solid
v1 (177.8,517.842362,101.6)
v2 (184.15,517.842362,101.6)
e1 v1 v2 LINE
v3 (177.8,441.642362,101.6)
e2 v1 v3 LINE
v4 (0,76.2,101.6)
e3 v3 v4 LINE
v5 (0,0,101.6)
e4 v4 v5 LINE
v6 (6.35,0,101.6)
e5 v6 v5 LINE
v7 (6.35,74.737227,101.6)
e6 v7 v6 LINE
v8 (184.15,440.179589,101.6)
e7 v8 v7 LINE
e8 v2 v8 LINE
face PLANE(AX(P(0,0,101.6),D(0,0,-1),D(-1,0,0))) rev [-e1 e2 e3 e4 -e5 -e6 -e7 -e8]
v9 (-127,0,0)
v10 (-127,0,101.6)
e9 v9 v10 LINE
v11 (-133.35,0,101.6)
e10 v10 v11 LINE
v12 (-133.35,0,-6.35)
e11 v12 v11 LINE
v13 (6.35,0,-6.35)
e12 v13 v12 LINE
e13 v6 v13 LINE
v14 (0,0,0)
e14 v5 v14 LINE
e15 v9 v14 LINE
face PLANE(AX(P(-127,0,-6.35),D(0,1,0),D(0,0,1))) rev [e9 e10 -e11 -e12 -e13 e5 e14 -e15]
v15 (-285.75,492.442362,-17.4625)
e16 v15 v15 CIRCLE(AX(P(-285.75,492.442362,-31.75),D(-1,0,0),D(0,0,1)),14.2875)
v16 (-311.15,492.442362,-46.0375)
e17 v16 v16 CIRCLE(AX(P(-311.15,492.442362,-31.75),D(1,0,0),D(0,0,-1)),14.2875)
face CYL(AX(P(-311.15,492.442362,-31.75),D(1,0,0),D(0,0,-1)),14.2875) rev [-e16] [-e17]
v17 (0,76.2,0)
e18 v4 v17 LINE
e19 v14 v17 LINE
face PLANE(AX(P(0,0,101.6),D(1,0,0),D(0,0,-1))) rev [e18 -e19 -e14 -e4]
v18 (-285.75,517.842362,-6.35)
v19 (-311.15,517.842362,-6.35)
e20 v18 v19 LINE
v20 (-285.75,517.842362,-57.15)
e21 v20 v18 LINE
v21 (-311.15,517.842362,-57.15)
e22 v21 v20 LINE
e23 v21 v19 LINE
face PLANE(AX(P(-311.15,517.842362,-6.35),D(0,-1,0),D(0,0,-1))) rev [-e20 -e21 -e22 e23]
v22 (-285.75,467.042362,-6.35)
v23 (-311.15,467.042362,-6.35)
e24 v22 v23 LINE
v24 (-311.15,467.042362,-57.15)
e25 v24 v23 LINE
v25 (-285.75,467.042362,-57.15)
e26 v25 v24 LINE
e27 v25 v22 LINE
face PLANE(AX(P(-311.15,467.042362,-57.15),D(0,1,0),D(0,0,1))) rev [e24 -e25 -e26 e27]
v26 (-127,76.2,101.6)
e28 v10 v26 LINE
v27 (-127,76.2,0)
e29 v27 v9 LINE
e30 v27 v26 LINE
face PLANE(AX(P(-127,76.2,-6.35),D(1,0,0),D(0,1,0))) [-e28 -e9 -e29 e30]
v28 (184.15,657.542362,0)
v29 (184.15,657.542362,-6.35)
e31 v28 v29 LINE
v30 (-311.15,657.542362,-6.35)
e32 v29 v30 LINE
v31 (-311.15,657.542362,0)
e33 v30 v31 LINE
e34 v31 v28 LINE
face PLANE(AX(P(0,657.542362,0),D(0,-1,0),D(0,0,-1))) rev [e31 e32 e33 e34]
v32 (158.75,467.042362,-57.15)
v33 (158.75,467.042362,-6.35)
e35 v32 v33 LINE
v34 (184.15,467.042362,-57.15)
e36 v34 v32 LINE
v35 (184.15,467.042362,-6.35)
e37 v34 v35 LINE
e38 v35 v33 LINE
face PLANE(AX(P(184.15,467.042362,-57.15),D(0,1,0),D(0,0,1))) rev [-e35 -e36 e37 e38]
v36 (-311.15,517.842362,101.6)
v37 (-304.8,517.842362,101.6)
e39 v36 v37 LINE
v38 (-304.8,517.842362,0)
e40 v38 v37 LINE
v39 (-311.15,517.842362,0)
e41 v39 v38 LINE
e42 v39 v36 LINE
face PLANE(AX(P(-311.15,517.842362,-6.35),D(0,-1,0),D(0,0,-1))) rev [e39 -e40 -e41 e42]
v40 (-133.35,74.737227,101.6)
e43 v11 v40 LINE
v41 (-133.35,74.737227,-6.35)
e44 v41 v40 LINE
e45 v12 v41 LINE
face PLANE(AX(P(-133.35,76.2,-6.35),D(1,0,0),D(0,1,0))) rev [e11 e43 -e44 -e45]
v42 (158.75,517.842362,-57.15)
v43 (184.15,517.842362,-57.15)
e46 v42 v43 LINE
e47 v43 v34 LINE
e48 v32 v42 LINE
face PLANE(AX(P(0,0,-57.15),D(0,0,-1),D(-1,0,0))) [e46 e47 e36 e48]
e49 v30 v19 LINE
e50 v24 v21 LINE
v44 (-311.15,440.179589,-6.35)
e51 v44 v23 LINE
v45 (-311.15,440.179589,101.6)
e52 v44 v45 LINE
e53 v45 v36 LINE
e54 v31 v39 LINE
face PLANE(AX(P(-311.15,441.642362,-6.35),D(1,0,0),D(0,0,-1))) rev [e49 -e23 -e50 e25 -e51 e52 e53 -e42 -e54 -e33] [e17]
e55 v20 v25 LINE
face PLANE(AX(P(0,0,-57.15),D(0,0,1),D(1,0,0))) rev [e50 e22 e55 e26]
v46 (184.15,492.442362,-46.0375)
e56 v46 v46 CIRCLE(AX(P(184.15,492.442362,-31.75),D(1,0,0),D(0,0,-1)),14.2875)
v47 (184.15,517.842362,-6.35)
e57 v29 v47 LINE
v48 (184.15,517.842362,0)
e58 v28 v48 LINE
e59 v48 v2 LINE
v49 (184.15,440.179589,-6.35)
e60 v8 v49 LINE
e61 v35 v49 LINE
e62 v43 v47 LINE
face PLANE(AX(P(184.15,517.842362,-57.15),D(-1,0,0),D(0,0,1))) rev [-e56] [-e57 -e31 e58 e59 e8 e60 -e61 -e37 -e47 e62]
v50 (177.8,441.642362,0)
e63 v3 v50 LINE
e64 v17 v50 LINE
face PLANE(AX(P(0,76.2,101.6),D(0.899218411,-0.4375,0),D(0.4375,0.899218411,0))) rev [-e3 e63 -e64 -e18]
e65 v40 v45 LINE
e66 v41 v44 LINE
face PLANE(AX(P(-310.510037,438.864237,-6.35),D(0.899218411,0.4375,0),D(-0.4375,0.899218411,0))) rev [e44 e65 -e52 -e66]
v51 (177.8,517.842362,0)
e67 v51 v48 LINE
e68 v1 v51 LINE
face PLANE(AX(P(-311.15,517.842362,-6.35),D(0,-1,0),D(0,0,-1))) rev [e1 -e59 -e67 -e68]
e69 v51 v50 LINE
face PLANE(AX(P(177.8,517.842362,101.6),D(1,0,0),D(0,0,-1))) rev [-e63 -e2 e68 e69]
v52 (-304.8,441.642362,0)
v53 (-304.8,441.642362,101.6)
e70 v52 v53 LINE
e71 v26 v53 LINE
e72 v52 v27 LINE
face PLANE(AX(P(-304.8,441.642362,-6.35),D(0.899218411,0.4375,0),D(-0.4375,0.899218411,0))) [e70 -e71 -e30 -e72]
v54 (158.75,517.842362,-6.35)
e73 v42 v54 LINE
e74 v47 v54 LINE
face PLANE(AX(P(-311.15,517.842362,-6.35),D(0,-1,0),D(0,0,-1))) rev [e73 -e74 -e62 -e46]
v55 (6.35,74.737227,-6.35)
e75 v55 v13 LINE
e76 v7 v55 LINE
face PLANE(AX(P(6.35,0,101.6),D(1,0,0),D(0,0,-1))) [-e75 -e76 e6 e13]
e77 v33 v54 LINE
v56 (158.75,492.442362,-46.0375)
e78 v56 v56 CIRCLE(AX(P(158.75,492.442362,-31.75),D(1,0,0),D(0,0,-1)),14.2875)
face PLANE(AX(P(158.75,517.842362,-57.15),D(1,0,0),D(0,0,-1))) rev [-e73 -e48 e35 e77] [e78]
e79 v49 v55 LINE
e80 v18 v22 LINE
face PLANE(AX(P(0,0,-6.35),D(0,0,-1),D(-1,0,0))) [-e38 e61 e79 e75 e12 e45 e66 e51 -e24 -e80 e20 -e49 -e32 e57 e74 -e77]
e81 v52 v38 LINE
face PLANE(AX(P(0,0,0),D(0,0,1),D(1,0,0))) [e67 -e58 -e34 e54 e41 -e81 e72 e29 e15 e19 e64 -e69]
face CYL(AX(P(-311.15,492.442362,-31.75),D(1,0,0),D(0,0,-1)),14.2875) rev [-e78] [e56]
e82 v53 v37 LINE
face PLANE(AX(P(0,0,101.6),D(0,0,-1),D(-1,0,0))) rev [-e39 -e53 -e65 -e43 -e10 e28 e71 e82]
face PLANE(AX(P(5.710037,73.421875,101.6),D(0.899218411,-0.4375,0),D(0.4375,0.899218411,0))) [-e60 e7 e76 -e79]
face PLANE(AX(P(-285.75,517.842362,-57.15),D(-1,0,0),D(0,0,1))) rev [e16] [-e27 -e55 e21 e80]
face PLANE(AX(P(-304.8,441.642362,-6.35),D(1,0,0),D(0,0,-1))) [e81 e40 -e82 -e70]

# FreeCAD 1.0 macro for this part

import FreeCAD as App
import Part
import Sketcher
from FreeCAD import Vector
Q = App.Units.Quantity


def add_polygon(sketch, points):
    """Adds a closed chain of lines whose ends are joined by coincident constraints."""
    first, n = sketch.GeometryCount, len(points)
    for a, b in zip(points, points[1:] + points[:1]):
        sketch.addGeometry(Part.LineSegment(App.Vector(*a, 0), App.Vector(*b, 0)), False)
    for i in range(n):
        sketch.addConstraint(Sketcher.Constraint("Coincident", first + i, 2, first + (i + 1) % n, 1))

doc = App.newDocument("Part")
body = doc.addObject("PartDesign::Body", "Body")

# Sketch on XY plane
sketch1 = body.newObject("Sketcher::SketchObject", "Sketch")
sketch1.AttachmentSupport = (doc.getObject("XY_Plane"), [""])
sketch1.MapMode = "FlatFace"
add_polygon(sketch1, [(0, 76), (0, 0), (6, 0), (6, 75), (184, 440), (184, 518), (178, 518), (178, 442)])  # lines 0-7
sketch1.addConstraint(Sketcher.Constraint("Vertical", 0))
sketch1.addConstraint(Sketcher.Constraint("Horizontal", 1))
sketch1.addConstraint(Sketcher.Constraint("Vertical", 2))
sketch1.addConstraint(Sketcher.Constraint("Vertical", 4))
sketch1.addConstraint(Sketcher.Constraint("Horizontal", 5))
sketch1.addConstraint(Sketcher.Constraint("Vertical", 6))
sketch1.addConstraint(Sketcher.Constraint("Coincident", 0, 2, -1, 1))
sketch1.addConstraint(Sketcher.Constraint("Parallel", 3, 7))
sketch1.addConstraint(Sketcher.Constraint("Equal", 1, 5))
sketch1.addConstraint(Sketcher.Constraint("Equal", 0, 6))
sketch1.addConstraint(Sketcher.Constraint("DistanceY", 0, 2, 0, 1, Q("3 in")))
sketch1.addConstraint(Sketcher.Constraint("Distance", 3, Q("16 in")))
sketch1.addConstraint(Sketcher.Constraint("DistanceX", -1, 1, 5, 2, Q("7 in")))
sketch1.addConstraint(Sketcher.Constraint("DistanceX", 1, 1, 1, 2, Q("0.25 in")))
sketch1.addConstraint(Sketcher.Constraint("DistanceY", 2, 1, 2, 2, 74.737227))
pad1 = body.newObject("PartDesign::Pad", "Pad")
pad1.Profile = sketch1
pad1.Type = "TwoLengths"
pad1.Length = Q("4 in")
pad1.Length2 = Q("0.25 in")
body2 = doc.addObject("PartDesign::Body", "Body001")

# Sketch on XY plane
sketch2 = body2.newObject("Sketcher::SketchObject", "Sketch001")
sketch2.AttachmentSupport = (doc.getObject("XY_Plane001"), [""])
sketch2.MapMode = "FlatFace"
add_polygon(sketch2, [(-305, 442), (-305, 518), (-311, 518), (-311, 440), (-133, 75), (-133, 0), (-127, 0), (-127, 76)])  # lines 0-7
sketch2.addConstraint(Sketcher.Constraint("Vertical", 0))
sketch2.addConstraint(Sketcher.Constraint("Horizontal", 1))
sketch2.addConstraint(Sketcher.Constraint("Vertical", 2))
sketch2.addConstraint(Sketcher.Constraint("Vertical", 4))
sketch2.addConstraint(Sketcher.Constraint("Horizontal", 5))
sketch2.addConstraint(Sketcher.Constraint("Vertical", 6))
sketch2.addConstraint(Sketcher.Constraint("PointOnObject", 4, 2, -1))
sketch2.addConstraint(Sketcher.Constraint("Parallel", 3, 7))
sketch2.addConstraint(Sketcher.Constraint("Equal", 1, 5))
sketch2.addConstraint(Sketcher.Constraint("Equal", 0, 6))
sketch2.addConstraint(Sketcher.Constraint("DistanceY", 0, 1, 0, 2, Q("3 in")))
sketch2.addConstraint(Sketcher.Constraint("Distance", 3, Q("16 in")))
sketch2.addConstraint(Sketcher.Constraint("DistanceX", 0, 2, -1, 1, Q("12 in")))
sketch2.addConstraint(Sketcher.Constraint("DistanceX", 5, 2, -1, 1, Q("5 in")))
sketch2.addConstraint(Sketcher.Constraint("DistanceX", 1, 2, 1, 1, Q("0.25 in")))
sketch2.addConstraint(Sketcher.Constraint("DistanceY", 2, 2, 2, 1, 77.662773))
pad2 = body2.newObject("PartDesign::Pad", "Pad001")
pad2.Profile = sketch2
pad2.Type = "TwoLengths"
pad2.Length = Q("4 in")
pad2.Length2 = Q("0.25 in")

# Sketch on XY plane
sketch3 = body2.newObject("Sketcher::SketchObject", "Sketch002")
sketch3.AttachmentSupport = (doc.getObject("XY_Plane001"), [""])
sketch3.MapMode = "FlatFace"
add_polygon(sketch3, [(-127, 0), (0, 0), (0, 76), (178, 442), (178, 518), (-305, 518), (-305, 442), (-127, 76)])  # lines 0-7
sketch3.addConstraint(Sketcher.Constraint("Horizontal", 0))
sketch3.addConstraint(Sketcher.Constraint("Vertical", 1))
sketch3.addConstraint(Sketcher.Constraint("Vertical", 3))
sketch3.addConstraint(Sketcher.Constraint("Horizontal", 4))
sketch3.addConstraint(Sketcher.Constraint("Vertical", 5))
sketch3.addConstraint(Sketcher.Constraint("Vertical", 7))
sketch3.addConstraint(Sketcher.Constraint("Coincident", 0, 2, -1, 1))
sketch3.addConstraint(Sketcher.Constraint("Horizontal", 2, 2, 5, 2))
sketch3.addConstraint(Sketcher.Constraint("Horizontal", 1, 2, 6, 2))
sketch3.addConstraint(Sketcher.Constraint("Equal", 1, 3))
sketch3.addConstraint(Sketcher.Constraint("Equal", 2, 6))
sketch3.addConstraint(Sketcher.Constraint("DistanceX", 0, 1, 0, 2, Q("5 in")))
sketch3.addConstraint(Sketcher.Constraint("DistanceX", 4, 2, 4, 1, Q("19 in")))
sketch3.addConstraint(Sketcher.Constraint("DistanceY", 1, 1, 1, 2, Q("3 in")))
sketch3.addConstraint(Sketcher.Constraint("Distance", 2, Q("16 in")))
pad3 = body2.newObject("PartDesign::Pad", "Pad002")
pad3.Profile = sketch3
pad3.Length = Q("0.25 in")
pad3.Reversed = True
doc.recompute()

boolean = body.newObject("PartDesign::Boolean", "Boolean")
boolean.Type = "Fuse"
boolean.addObjects([body2])

# Sketch on XY plane
sketch4 = body.newObject("Sketcher::SketchObject", "Sketch003")
sketch4.AttachmentSupport = (doc.getObject("XY_Plane"), [""])
sketch4.MapMode = "FlatFace"
sketch4.AttachmentOffset = App.Placement(Vector(0, 0, -0.25 * 25.4), App.Rotation())
add_polygon(sketch4, [(184, 518), (184, 467), (159, 467), (159, 518)])  # lines 0-3
add_polygon(sketch4, [(-286, 518), (-286, 467), (-311, 467), (-311, 518)])  # lines 4-7
sketch4.addConstraint(Sketcher.Constraint("Vertical", 0))
sketch4.addConstraint(Sketcher.Constraint("Horizontal", 1))
sketch4.addConstraint(Sketcher.Constraint("Vertical", 2))
sketch4.addConstraint(Sketcher.Constraint("Horizontal", 3))
sketch4.addConstraint(Sketcher.Constraint("Vertical", 4))
sketch4.addConstraint(Sketcher.Constraint("Horizontal", 5))
sketch4.addConstraint(Sketcher.Constraint("Vertical", 6))
sketch4.addConstraint(Sketcher.Constraint("Horizontal", 7))
sketch4.addConstraint(Sketcher.Constraint("Horizontal", 1, 2, 4, 2))
sketch4.addConstraint(Sketcher.Constraint("Horizontal", 3, 2, 6, 2))
sketch4.addConstraint(Sketcher.Constraint("Equal", 3, 5))
sketch4.addConstraint(Sketcher.Constraint("DistanceX", 1, 2, 1, 1, Q("1 in")))
sketch4.addConstraint(Sketcher.Constraint("DistanceY", 0, 2, 0, 1, Q("2 in")))
sketch4.addConstraint(Sketcher.Constraint("DistanceX", 4, 2, 1, 2, Q("17.5 in")))
sketch4.addConstraint(Sketcher.Constraint("DistanceX", -1, 1, 0, 2, Q("7.25 in")))
sketch4.addConstraint(Sketcher.Constraint("DistanceY", -1, 1, 0, 2, 467.042362))
pad4 = body.newObject("PartDesign::Pad", "Pad003")
pad4.Profile = sketch4
pad4.Length = Q("2 in")
pad4.Reversed = True

# Sketch on YZ plane
sketch5 = body.newObject("Sketcher::SketchObject", "Sketch004")
sketch5.AttachmentSupport = (doc.getObject("YZ_Plane"), [""])
sketch5.MapMode = "FlatFace"
sketch5.AttachmentOffset = App.Placement(Vector(0, 0, 7.25 * 25.4), App.Rotation())
sketch5.addGeometry(Part.Circle(Vector(492, -32, 0), Vector(0, 0, 1), 14), False)
sketch5.addConstraint(Sketcher.Constraint("Diameter", 0, Q("1.125 in")))
sketch5.addConstraint(Sketcher.Constraint("DistanceY", 0, 3, -1, 1, Q("1.25 in")))
sketch5.addConstraint(Sketcher.Constraint("DistanceX", -1, 1, 0, 3, 492.442362))
pocket1 = body.newObject("PartDesign::Pocket", "Pocket")
pocket1.Profile = sketch5
pocket1.Type = "ThroughAll"

# Sketch on XZ plane
sketch6 = body.newObject("Sketcher::SketchObject", "Sketch005")
sketch6.AttachmentSupport = (doc.getObject("XZ_Plane"), [""])
sketch6.MapMode = "FlatFace"
sketch6.AttachmentOffset = App.Placement(Vector(0, 0, -517.842362), App.Rotation())
add_polygon(sketch6, [(-311, -6), (-311, 0), (184, 0), (184, -6)])  # lines 0-3
sketch6.addConstraint(Sketcher.Constraint("Vertical", 0))
sketch6.addConstraint(Sketcher.Constraint("Horizontal", 1))
sketch6.addConstraint(Sketcher.Constraint("Vertical", 2))
sketch6.addConstraint(Sketcher.Constraint("Horizontal", 3))
sketch6.addConstraint(Sketcher.Constraint("PointOnObject", 0, 2, -1))
sketch6.addConstraint(Sketcher.Constraint("DistanceX", 1, 1, 1, 2, Q("19.5 in")))
sketch6.addConstraint(Sketcher.Constraint("DistanceY", 0, 1, 0, 2, Q("0.25 in")))
sketch6.addConstraint(Sketcher.Constraint("DistanceX", 0, 2, -1, 1, Q("12.25 in")))
pad5 = body.newObject("PartDesign::Pad", "Pad004")
pad5.Profile = sketch6
pad5.Length = Q("5.5 in")
pad5.Reversed = True

doc.recompute()
